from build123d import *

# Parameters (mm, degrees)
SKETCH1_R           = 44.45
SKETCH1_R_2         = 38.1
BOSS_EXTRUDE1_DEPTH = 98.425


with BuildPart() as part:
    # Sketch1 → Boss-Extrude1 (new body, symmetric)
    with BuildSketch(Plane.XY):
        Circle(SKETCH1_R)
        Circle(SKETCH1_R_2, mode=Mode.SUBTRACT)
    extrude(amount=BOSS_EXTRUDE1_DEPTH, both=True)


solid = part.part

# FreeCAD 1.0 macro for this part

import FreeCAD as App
import Part
import Sketcher

V = App.Vector
Q = App.Units.Quantity

doc = App.newDocument("Part")
body = doc.addObject("PartDesign::Body", "Body")

# Sketch on XY plane
sketch1 = body.newObject("Sketcher::SketchObject", "Sketch")
sketch1.AttachmentSupport = (doc.getObject("XY_Plane"), [""])
sketch1.MapMode = "FlatFace"
sketch1.addGeometry(Part.Circle(V(0, 0, 0), V(0, 0, 1), 44), False)
sketch1.addGeometry(Part.Circle(V(0, 0, 0), V(0, 0, 1), 38), False)
sketch1.addConstraint(Sketcher.Constraint("Coincident", 0, 3, -1, 1))
sketch1.addConstraint(Sketcher.Constraint("Coincident", 1, 3, -1, 1))
sketch1.addConstraint(Sketcher.Constraint("Diameter", 1, Q("3 in")))
sketch1.addConstraint(Sketcher.Constraint("Diameter", 0, Q("3.5 in")))
pad1 = body.newObject("PartDesign::Pad", "Pad")
pad1.Profile = sketch1
pad1.Length = Q("7.75 in")
pad1.Midplane = True

doc.recompute()
